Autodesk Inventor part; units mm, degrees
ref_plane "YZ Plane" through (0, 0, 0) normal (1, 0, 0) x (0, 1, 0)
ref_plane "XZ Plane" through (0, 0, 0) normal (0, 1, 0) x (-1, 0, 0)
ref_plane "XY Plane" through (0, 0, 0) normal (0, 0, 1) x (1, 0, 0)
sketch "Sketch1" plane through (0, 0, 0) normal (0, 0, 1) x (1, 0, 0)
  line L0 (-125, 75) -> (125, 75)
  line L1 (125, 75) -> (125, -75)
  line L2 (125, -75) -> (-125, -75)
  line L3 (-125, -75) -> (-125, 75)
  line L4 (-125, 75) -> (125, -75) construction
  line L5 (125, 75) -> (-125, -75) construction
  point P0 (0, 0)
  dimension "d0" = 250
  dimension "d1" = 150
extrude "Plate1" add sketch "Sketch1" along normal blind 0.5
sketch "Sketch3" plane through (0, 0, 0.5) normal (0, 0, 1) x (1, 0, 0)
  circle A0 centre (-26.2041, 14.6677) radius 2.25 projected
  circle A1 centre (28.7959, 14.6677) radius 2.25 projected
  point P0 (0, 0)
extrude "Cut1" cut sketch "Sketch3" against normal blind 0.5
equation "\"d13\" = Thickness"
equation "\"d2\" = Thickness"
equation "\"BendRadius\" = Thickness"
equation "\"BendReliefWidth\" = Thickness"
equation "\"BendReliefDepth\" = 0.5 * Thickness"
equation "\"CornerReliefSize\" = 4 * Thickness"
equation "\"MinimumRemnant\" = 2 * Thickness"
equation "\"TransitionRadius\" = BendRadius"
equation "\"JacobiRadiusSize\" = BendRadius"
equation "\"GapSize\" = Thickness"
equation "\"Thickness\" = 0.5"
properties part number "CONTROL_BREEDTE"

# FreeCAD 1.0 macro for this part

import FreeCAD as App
import Part
import Sketcher

doc = App.newDocument("Part")
params = doc.addObject("Spreadsheet::Sheet", "Params")
for row, (alias, value) in enumerate([
    ("sketch1_width", "250 mm"),
    ("sketch1_height", "150 mm"),
    ("pad1_length", "0.5 mm"),
    ("sketch2_diameter", "4.5 mm"),
    ("pocket1_length", "0.5 mm"),
], start=1):
    params.set(f"A{row}", alias)
    params.set(f"B{row}", "=" + value)
    params.setAlias(f"B{row}", alias)

body = doc.addObject("PartDesign::Body", "Body")

# Sketch on XY plane
sketch1 = body.newObject("Sketcher::SketchObject", "Sketch")
sketch1.AttachmentSupport = (doc.getObject("XY_Plane"), [""])
sketch1.MapMode = "FlatFace"
sketch1.addGeometry([
    Part.LineSegment(App.Vector(125, 75, 0), App.Vector(-125, 75, 0)),
    Part.LineSegment(App.Vector(-125, 75, 0), App.Vector(-125, -75, 0)),
    Part.LineSegment(App.Vector(-125, -75, 0), App.Vector(125, -75, 0)),
    Part.LineSegment(App.Vector(125, -75, 0), App.Vector(125, 75, 0)),
], False)
sketch1.addConstraint([
    Sketcher.Constraint("Coincident", 0, 2, 1, 1),
    Sketcher.Constraint("Coincident", 1, 2, 2, 1),
    Sketcher.Constraint("Coincident", 2, 2, 3, 1),
    Sketcher.Constraint("Coincident", 3, 2, 0, 1),
    Sketcher.Constraint("Horizontal", 0),
    Sketcher.Constraint("Vertical", 1),
    Sketcher.Constraint("Horizontal", 2),
    Sketcher.Constraint("Vertical", 3),
    Sketcher.Constraint("Symmetric", 0, 2, 2, 2, -1, 1),
    Sketcher.Constraint("DistanceX", 0, 2, 0, 1, 250.0),
    Sketcher.Constraint("DistanceY", 1, 2, 1, 1, 150.0),
])
sketch1.setExpression("Constraints[9]", "Params.sketch1_width")
sketch1.setExpression("Constraints[10]", "Params.sketch1_height")
pad1 = body.newObject("PartDesign::Pad", "Pad")
pad1.Profile = sketch1
pad1.setExpression("Length", "Params.pad1_length")

# Sketch on XY plane
sketch2 = body.newObject("Sketcher::SketchObject", "Sketch001")
sketch2.AttachmentSupport = (doc.getObject("XY_Plane"), [""])
sketch2.MapMode = "FlatFace"
sketch2.AttachmentOffset = App.Placement(App.Vector(0, 0, 0.5), App.Rotation())
sketch2.addGeometry([
    Part.Circle(App.Vector(-26.2041, 14.6677, 0), App.Vector(0, 0, 1), 2.25),
    Part.Circle(App.Vector(28.7959, 14.6677, 0), App.Vector(0, 0, 1), 2.25),
], False)
sketch2.addConstraint([
    Sketcher.Constraint("Equal", 0, 1),
    Sketcher.Constraint("Horizontal", 0, 3, 1, 3),
    Sketcher.Constraint("Diameter", 0, 4.5),
    Sketcher.Constraint("DistanceX", 0, 3, 1, 3, 55.0),
    Sketcher.Constraint("DistanceX", 0, 3, -1, 1, 26.204),
    Sketcher.Constraint("DistanceY", -1, 1, 0, 3, 14.6677),
])
sketch2.setExpression("Constraints[2]", "Params.sketch2_diameter")
pocket1 = body.newObject("PartDesign::Pocket", "Pocket")
pocket1.Profile = sketch2
pocket1.setExpression("Length", "Params.pocket1_length")

doc.recompute()
